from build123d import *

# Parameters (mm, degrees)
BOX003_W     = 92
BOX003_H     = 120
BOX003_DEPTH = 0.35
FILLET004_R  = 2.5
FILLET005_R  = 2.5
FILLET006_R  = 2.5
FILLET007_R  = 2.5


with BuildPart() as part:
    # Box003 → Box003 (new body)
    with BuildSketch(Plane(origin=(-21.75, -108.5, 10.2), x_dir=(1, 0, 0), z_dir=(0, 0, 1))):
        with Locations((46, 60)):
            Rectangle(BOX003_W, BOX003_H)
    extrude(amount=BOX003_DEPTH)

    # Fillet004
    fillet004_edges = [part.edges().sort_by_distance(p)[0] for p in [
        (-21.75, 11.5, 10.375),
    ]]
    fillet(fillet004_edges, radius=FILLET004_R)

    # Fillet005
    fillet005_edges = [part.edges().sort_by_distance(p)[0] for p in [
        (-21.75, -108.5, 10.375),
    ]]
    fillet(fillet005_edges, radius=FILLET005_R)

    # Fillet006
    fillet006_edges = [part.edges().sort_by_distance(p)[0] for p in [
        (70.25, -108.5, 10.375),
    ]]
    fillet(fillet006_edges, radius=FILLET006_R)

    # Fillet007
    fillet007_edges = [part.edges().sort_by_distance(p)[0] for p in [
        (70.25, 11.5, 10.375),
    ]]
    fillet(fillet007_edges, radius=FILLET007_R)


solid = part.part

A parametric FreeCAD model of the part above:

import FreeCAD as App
import Part
import Sketcher
from FreeCAD import Vector


def edges_at(feature, points):
    """Names of the edges that pass closest to the given points."""
    edges = feature.Shape.Edges
    near = lambda p: min(range(len(edges)), key=lambda i: edges[i].distToShape(Part.Vertex(*p))[0])
    return sorted({f"Edge{near(p) + 1}" for p in points})


def add_polygon(sketch, points):
    """Adds a closed chain of lines whose ends are joined by coincident constraints."""
    first, n = sketch.GeometryCount, len(points)
    for a, b in zip(points, points[1:] + points[:1]):
        sketch.addGeometry(Part.LineSegment(App.Vector(*a, 0), App.Vector(*b, 0)), False)
    for i in range(n):
        sketch.addConstraint(Sketcher.Constraint("Coincident", first + i, 2, first + (i + 1) % n, 1))

doc = App.newDocument("Part")
body = doc.addObject("PartDesign::Body", "Body")

# Sketch on XY plane
sketch1 = doc.addObject("Sketcher::SketchObject", "Sketch")
body.addObject(sketch1)
sketch1.AttachmentSupport = (doc.XY_Plane, [""])
sketch1.MapMode = "FlatFace"
sketch1.AttachmentOffset = App.Placement(Vector(0, 0, 10.2), App.Rotation())
add_polygon(sketch1, [(-22, 12), (-22, -108), (70, -108), (70, 12)])  # lines 0-3
sketch1.addConstraint(Sketcher.Constraint("Vertical", 0))
sketch1.addConstraint(Sketcher.Constraint("Horizontal", 1))
sketch1.addConstraint(Sketcher.Constraint("Vertical", 2))
sketch1.addConstraint(Sketcher.Constraint("Horizontal", 3))
sketch1.addConstraint(Sketcher.Constraint("DistanceX", 1, 1, 1, 2, 92.0))
sketch1.addConstraint(Sketcher.Constraint("DistanceY", 0, 2, 0, 1, 120.0))
sketch1.addConstraint(Sketcher.Constraint("DistanceY", 0, 2, -1, 1, 108.5))
sketch1.addConstraint(Sketcher.Constraint("DistanceX", 0, 2, -1, 1, 21.75))
pad1 = doc.addObject("PartDesign::Pad", "Pad")
body.addObject(pad1)
pad1.Profile = sketch1
pad1.Length = 0.35
doc.recompute()

fillet = doc.addObject("PartDesign::Fillet", "Fillet")
body.addObject(fillet)
fillet.Base = (pad1, edges_at(pad1, [(-21.75, 11.5, 10.375)]))
fillet.Radius = 2.5
doc.recompute()

fillet2 = doc.addObject("PartDesign::Fillet", "Fillet001")
body.addObject(fillet2)
fillet2.Base = (fillet, edges_at(fillet, [(-21.75, -108.5, 10.375)]))
fillet2.Radius = 2.5
doc.recompute()

fillet3 = doc.addObject("PartDesign::Fillet", "Fillet002")
body.addObject(fillet3)
fillet3.Base = (fillet2, edges_at(fillet2, [(70.25, -108.5, 10.375)]))
fillet3.Radius = 2.5
doc.recompute()

fillet4 = doc.addObject("PartDesign::Fillet", "Fillet003")
body.addObject(fillet4)
fillet4.Base = (fillet3, edges_at(fillet3, [(70.25, 11.5, 10.375)]))
fillet4.Radius = 2.5

doc.recompute()
